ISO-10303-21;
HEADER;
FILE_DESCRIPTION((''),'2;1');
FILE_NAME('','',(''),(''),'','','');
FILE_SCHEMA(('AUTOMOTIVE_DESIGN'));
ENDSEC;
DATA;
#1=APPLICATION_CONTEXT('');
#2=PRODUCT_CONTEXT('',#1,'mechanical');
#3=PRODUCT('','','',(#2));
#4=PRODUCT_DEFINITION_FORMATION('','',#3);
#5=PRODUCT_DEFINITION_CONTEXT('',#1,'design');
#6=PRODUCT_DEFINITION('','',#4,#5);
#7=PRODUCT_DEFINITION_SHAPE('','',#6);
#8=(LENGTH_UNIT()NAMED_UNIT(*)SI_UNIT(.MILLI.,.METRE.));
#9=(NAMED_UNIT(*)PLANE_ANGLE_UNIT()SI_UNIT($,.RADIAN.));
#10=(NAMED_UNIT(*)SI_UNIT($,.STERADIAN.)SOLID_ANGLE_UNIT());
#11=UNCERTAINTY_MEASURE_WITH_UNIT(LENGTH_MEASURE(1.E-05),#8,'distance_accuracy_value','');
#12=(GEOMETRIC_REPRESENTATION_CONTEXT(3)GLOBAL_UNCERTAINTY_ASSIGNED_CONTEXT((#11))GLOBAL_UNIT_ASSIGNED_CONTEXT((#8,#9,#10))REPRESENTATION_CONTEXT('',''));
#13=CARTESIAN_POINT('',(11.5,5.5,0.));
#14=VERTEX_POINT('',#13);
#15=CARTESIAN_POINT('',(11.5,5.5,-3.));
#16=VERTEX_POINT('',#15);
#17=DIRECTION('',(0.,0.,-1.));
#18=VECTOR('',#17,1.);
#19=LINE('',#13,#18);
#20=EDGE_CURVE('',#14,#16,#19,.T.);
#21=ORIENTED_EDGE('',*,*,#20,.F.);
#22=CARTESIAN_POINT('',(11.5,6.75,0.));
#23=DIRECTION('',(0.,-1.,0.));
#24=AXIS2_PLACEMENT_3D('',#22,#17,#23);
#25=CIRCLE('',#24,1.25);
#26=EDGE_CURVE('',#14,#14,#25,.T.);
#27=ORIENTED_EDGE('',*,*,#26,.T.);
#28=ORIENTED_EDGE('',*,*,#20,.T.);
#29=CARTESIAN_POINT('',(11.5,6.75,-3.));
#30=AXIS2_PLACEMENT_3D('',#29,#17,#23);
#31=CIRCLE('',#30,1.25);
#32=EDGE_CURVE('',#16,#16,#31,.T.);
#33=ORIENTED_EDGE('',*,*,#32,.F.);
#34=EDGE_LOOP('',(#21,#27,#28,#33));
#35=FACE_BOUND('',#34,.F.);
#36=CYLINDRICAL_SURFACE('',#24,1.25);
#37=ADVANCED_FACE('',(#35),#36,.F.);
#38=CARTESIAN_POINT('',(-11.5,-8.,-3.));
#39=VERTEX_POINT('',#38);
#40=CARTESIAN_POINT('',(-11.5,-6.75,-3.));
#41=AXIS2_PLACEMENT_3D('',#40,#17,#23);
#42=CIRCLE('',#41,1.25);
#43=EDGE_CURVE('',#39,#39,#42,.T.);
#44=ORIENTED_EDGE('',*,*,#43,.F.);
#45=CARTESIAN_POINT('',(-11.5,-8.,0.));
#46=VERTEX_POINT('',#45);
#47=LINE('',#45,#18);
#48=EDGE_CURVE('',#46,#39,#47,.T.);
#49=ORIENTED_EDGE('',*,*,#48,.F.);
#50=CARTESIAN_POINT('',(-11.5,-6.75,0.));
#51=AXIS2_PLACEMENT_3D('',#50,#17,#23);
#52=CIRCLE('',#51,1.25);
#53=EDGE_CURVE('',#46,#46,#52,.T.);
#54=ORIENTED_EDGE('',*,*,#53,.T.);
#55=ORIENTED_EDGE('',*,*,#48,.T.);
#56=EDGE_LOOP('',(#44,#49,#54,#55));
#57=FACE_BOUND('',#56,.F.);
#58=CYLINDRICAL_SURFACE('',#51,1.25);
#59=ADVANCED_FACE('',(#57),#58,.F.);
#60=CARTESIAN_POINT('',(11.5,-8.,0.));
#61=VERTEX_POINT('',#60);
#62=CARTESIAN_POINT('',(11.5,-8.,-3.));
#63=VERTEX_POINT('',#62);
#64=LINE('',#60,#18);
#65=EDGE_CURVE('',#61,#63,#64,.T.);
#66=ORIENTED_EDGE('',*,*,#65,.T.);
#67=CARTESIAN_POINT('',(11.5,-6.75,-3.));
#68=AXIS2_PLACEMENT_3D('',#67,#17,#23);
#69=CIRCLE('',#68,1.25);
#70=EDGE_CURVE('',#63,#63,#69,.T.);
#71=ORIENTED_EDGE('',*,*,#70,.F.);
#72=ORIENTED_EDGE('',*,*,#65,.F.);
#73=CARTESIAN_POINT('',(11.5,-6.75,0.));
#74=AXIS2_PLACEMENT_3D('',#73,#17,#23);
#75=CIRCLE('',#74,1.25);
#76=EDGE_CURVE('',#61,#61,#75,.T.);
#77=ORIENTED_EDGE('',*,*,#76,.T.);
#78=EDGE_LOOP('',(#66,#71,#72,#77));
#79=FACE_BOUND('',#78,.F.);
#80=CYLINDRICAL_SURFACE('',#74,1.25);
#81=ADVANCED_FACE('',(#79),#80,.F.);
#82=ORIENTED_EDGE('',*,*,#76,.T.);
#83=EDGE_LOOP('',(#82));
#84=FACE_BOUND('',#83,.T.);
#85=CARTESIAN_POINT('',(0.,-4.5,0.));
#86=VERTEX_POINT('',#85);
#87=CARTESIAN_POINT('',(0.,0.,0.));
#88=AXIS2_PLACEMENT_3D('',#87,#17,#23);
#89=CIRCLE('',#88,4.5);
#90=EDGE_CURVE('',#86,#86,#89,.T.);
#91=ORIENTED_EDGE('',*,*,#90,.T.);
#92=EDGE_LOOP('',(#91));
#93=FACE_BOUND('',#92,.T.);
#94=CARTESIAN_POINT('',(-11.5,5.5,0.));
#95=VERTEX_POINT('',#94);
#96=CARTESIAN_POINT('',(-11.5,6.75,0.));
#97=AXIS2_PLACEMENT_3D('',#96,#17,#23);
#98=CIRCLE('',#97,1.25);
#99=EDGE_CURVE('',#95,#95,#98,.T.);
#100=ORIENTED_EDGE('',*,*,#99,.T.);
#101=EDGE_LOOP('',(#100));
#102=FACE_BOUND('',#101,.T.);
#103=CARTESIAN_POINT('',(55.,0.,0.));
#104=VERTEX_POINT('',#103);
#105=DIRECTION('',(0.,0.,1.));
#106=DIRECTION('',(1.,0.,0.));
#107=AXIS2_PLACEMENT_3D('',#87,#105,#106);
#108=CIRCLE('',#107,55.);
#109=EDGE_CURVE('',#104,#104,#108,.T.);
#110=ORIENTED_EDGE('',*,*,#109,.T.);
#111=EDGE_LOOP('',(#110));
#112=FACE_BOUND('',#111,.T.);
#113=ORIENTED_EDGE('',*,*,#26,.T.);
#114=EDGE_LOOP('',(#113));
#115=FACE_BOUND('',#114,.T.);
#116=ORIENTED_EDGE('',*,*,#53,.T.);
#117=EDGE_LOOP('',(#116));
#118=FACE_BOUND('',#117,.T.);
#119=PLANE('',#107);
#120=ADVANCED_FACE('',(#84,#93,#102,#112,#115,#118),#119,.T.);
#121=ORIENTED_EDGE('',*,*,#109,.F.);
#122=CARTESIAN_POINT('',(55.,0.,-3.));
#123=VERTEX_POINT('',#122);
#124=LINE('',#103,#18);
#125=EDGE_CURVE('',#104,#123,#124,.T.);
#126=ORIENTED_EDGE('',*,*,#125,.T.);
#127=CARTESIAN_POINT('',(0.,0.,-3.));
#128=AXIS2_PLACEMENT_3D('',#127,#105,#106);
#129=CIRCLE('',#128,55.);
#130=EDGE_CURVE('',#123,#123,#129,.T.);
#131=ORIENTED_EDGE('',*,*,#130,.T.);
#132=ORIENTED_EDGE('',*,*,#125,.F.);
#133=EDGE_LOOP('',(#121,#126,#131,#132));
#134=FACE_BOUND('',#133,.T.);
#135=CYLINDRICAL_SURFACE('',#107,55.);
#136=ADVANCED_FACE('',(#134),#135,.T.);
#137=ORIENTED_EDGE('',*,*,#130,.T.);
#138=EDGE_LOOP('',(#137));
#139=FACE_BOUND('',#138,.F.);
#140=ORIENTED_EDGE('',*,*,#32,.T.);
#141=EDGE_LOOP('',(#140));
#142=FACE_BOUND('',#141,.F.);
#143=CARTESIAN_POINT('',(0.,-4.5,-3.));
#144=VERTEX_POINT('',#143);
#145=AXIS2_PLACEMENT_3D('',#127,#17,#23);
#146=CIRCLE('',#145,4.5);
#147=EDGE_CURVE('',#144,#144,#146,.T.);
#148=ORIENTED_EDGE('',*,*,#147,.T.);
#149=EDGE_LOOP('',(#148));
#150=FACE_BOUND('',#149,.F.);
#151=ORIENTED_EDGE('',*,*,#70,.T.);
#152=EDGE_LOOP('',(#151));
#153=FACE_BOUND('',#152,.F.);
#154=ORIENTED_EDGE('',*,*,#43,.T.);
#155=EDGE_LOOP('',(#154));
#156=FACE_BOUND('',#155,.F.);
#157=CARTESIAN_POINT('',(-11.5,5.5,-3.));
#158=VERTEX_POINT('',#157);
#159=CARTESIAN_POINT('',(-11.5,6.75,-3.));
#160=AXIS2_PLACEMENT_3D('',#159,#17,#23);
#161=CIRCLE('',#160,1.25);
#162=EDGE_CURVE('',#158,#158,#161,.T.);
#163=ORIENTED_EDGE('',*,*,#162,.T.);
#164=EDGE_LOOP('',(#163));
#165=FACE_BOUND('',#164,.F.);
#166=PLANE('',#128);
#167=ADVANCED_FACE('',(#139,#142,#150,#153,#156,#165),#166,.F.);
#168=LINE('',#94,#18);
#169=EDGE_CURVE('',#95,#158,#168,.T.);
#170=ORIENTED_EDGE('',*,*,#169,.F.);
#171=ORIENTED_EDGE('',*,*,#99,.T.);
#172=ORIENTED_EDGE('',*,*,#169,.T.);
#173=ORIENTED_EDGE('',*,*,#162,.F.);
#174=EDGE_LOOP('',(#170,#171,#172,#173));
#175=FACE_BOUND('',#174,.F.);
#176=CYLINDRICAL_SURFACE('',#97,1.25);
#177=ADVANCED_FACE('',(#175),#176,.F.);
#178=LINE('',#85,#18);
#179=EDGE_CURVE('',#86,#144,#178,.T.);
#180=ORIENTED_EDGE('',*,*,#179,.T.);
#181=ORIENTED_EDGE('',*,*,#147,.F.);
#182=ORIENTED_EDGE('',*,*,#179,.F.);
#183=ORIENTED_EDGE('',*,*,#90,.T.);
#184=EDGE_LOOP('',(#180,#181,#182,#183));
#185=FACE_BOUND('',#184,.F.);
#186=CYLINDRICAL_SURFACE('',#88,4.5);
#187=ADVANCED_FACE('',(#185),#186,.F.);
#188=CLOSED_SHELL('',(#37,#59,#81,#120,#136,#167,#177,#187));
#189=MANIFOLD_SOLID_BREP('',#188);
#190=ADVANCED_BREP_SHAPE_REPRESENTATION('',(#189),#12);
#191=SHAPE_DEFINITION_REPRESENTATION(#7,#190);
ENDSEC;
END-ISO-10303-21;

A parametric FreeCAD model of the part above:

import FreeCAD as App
import Part
import Sketcher
from FreeCAD import Vector

doc = App.newDocument("Part")
body = doc.addObject("PartDesign::Body", "Body")

# Sketch on XY plane
sketch1 = doc.addObject("Sketcher::SketchObject", "Sketch")
body.addObject(sketch1)
sketch1.AttachmentSupport = (doc.XY_Plane, [""])
sketch1.MapMode = "FlatFace"
sketch1.addGeometry(Part.Circle(Vector(0, 0, 0), Vector(0, 0, 1), 55), False)
sketch1.addConstraint([
    Sketcher.Constraint("Coincident", 0, 3, -1, 1),
    Sketcher.Constraint("Diameter", 0, 110.0),
])
pad1 = doc.addObject("PartDesign::Pad", "Pad")
body.addObject(pad1)
pad1.Profile = sketch1
pad1.Length = 3
pad1.Reversed = True

# Sketch on XY plane
sketch2 = doc.addObject("Sketcher::SketchObject", "Sketch001")
body.addObject(sketch2)
sketch2.AttachmentSupport = (doc.XY_Plane, [""])
sketch2.MapMode = "FlatFace"
sketch2.addGeometry(Part.Circle(Vector(0, 0, 0), Vector(0, 0, 1), 4.5), False)
sketch2.addConstraint([
    Sketcher.Constraint("Coincident", 0, 3, -1, 1),
    Sketcher.Constraint("Diameter", 0, 9.0),
])
doc.recompute()
hole = doc.addObject("PartDesign::Hole", "Hole")
body.addObject(hole)
hole.Profile = sketch2
hole.ThreadType = "None"
hole.Diameter = 9
hole.DepthType = "ThroughAll"

# Sketch on XY plane
sketch3 = doc.addObject("Sketcher::SketchObject", "Sketch002")
body.addObject(sketch3)
sketch3.AttachmentSupport = (doc.XY_Plane, [""])
sketch3.MapMode = "FlatFace"
sketch3.addGeometry([
    Part.Circle(Vector(11.5, -6.8, 0), Vector(0, 0, 1), 1.2),
    Part.Circle(Vector(-11.5, 6.8, 0), Vector(0, 0, 1), 1.2),
    Part.Circle(Vector(-11.5, -6.8, 0), Vector(0, 0, 1), 1.2),
    Part.Circle(Vector(11.5, 6.8, 0), Vector(0, 0, 1), 1.2),
], False)
sketch3.addConstraint([
    Sketcher.Constraint("Equal", 0, 1),
    Sketcher.Constraint("Equal", 1, 2),
    Sketcher.Constraint("Equal", 2, 3),
    Sketcher.Constraint("Symmetric", 0, 3, 1, 3, -1, 1),
    Sketcher.Constraint("Symmetric", 2, 3, 3, 3, -1, 1),
    Sketcher.Constraint("Symmetric", 0, 3, 2, 3, -2),
    Sketcher.Constraint("Diameter", 0, 2.5),
    Sketcher.Constraint("DistanceX", 1, 3, 0, 3, 23.0),
    Sketcher.Constraint("DistanceY", 0, 3, 1, 3, 13.5),
])
doc.recompute()
hole2 = doc.addObject("PartDesign::Hole", "Hole001")
body.addObject(hole2)
hole2.Profile = sketch3
hole2.ThreadType = "None"
hole2.Diameter = 2.5
hole2.DepthType = "ThroughAll"

doc.recompute()
